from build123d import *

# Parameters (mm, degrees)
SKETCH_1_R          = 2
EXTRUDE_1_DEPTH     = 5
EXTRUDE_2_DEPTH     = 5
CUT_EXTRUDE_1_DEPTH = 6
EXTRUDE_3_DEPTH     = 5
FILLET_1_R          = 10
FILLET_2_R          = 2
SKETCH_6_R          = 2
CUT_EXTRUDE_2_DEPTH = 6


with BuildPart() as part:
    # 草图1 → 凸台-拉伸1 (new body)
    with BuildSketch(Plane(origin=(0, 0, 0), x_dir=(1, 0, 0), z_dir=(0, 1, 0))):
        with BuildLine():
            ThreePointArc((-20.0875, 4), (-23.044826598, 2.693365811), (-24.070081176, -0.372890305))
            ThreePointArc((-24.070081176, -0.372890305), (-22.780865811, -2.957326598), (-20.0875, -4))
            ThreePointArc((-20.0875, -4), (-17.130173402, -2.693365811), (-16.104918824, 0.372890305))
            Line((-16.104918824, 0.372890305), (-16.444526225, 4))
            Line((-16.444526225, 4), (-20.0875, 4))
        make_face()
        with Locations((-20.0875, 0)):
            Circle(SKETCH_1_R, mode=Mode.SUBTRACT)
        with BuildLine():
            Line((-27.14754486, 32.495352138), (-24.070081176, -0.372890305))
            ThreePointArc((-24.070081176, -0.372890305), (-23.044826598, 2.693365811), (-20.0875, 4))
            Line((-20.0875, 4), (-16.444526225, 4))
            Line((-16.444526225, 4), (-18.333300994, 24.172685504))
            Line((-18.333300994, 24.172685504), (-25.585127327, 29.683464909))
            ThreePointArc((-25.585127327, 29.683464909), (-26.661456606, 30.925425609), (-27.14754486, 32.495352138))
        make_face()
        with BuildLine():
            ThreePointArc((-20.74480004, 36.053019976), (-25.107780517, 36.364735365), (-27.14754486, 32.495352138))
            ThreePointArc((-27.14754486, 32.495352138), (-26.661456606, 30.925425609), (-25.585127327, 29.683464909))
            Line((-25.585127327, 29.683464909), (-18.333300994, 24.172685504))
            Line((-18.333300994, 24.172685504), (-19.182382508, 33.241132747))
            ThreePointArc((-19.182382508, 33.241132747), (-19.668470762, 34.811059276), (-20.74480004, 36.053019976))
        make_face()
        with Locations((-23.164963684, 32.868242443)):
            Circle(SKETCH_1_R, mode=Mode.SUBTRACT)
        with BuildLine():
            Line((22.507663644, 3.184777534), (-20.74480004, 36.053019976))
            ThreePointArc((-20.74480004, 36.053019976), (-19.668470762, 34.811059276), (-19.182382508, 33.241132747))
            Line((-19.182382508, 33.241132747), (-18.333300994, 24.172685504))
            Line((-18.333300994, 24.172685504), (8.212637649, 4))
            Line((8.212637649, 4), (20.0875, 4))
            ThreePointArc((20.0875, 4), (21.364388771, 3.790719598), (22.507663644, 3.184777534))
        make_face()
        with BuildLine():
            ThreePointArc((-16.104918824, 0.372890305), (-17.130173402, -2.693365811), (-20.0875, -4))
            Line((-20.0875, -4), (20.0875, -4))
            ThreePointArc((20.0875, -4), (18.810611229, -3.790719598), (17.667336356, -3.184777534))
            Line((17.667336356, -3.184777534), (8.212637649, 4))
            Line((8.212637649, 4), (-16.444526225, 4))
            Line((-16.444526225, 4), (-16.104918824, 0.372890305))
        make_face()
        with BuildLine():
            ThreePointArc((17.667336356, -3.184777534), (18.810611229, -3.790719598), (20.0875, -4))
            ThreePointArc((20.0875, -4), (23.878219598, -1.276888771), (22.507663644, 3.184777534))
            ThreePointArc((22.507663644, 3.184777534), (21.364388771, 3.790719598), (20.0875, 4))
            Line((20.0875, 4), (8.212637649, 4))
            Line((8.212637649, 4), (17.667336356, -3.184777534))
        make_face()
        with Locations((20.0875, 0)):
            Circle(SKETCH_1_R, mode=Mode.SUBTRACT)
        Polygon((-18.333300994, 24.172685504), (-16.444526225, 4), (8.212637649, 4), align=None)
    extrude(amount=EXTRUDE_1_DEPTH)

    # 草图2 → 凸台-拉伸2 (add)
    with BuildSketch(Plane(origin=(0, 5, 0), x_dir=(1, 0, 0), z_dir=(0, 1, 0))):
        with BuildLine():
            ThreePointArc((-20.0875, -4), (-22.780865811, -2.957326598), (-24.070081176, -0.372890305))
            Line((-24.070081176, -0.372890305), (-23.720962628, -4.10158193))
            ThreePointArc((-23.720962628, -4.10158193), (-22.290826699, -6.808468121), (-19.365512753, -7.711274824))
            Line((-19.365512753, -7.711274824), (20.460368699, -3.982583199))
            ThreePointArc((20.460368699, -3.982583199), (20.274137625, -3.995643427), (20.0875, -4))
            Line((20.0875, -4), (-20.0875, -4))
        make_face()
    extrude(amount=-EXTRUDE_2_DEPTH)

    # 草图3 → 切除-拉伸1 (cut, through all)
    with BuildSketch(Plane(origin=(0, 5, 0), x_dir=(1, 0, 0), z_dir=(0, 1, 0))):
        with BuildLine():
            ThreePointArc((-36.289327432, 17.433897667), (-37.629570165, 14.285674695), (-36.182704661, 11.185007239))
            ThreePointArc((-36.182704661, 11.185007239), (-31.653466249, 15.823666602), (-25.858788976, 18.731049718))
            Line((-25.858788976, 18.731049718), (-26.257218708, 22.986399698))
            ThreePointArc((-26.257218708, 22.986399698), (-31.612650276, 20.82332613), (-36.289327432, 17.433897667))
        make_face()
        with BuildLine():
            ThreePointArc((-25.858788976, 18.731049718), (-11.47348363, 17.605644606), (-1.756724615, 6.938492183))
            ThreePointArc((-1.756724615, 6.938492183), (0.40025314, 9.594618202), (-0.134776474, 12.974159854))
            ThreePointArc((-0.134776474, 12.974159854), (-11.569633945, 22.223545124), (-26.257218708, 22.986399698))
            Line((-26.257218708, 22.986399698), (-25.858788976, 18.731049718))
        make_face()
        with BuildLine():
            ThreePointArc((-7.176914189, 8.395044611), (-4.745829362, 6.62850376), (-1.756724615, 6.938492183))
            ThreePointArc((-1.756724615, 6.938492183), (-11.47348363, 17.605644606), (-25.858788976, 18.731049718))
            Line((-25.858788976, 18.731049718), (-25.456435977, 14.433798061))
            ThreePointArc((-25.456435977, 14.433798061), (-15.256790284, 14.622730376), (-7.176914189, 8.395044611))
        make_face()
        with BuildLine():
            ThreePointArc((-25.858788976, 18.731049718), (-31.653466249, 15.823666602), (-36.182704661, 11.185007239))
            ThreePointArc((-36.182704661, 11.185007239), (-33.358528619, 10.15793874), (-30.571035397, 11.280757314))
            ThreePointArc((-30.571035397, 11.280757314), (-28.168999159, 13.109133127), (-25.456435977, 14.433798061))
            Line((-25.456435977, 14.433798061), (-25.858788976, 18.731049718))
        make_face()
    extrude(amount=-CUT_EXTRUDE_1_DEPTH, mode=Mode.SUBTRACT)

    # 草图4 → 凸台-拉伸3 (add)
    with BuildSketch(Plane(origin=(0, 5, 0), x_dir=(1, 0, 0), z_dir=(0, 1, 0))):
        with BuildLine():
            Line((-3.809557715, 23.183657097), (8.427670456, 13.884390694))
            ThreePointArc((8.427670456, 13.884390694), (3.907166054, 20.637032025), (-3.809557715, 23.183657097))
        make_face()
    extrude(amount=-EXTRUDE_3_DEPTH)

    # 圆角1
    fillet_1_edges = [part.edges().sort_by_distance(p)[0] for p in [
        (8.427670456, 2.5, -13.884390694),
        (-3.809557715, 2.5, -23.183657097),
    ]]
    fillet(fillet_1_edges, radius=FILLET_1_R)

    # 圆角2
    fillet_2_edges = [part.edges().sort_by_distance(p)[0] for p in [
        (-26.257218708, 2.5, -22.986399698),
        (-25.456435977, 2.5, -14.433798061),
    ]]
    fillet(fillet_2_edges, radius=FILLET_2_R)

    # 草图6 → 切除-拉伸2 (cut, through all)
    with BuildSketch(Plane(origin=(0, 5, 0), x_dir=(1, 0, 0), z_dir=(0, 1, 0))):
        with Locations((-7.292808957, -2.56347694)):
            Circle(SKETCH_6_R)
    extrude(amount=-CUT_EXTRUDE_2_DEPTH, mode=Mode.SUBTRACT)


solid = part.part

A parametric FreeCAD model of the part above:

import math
import FreeCAD as App
import Part
import Sketcher
from FreeCAD import Vector
Q = App.Units.Quantity


def edges_at(feature, points):
    """Names of the edges that pass closest to the given points."""
    edges = feature.Shape.Edges
    near = lambda p: min(range(len(edges)), key=lambda i: edges[i].distToShape(Part.Vertex(*p))[0])
    return sorted({f"Edge{near(p) + 1}" for p in points})

doc = App.newDocument("Part")
body = doc.addObject("PartDesign::Body", "Body")

# Sketch on XZ plane
sketch1 = doc.addObject("Sketcher::SketchObject", "Sketch")
body.addObject(sketch1)
sketch1.AttachmentSupport = (doc.XZ_Plane, [""])
sketch1.MapMode = "FlatFace"
sketch1.addGeometry([
    Part.LineSegment(Vector(-20.1, 4, 0), Vector(20.1, 4, 0)),  # 0
    Part.ArcOfCircle(Part.Circle(Vector(20.1, 0, 0), Vector(0, 0, 1), 4), math.radians(-53), math.radians(90)),  # 1
    Part.LineSegment(Vector(22.5, -3.2, 0), Vector(-20.7, -36.1, 0)),  # 2
    Part.ArcOfCircle(Part.Circle(Vector(-23.2, -32.9, 0), Vector(0, 0, 1), 4), math.radians(175), math.radians(307)),  # 3
    Part.LineSegment(Vector(-27.1, -32.5, 0), Vector(-24.1, 0.4, 0)),  # 4
    Part.ArcOfCircle(Part.Circle(Vector(-20.1, 0, 0), Vector(0, 0, 1), 4), math.radians(90), math.radians(175)),  # 5
    Part.Circle(Vector(-20.1, 0, 0), Vector(0, 0, 1), 2),  # 6
    Part.Circle(Vector(20.1, 0, 0), Vector(0, 0, 1), 2),  # 7
    Part.Circle(Vector(-23.2, -32.9, 0), Vector(0, 0, 1), 2),  # 8
], False)
sketch1.addConstraint([
    Sketcher.Constraint("Tangent", 0, 2, 1, 2),
    Sketcher.Constraint("Tangent", 1, 1, 2, 1),
    Sketcher.Constraint("Tangent", 2, 2, 3, 2),
    Sketcher.Constraint("Tangent", 3, 1, 4, 1),
    Sketcher.Constraint("Tangent", 4, 2, 5, 2),
    Sketcher.Constraint("Tangent", 5, 1, 0, 1),
    Sketcher.Constraint("Horizontal", 0),
    Sketcher.Constraint("Coincident", 6, 3, 5, 3),
    Sketcher.Constraint("Coincident", 7, 3, 1, 3),
    Sketcher.Constraint("Coincident", 8, 3, 3, 3),
    Sketcher.Constraint("Equal", 1, 3),
    Sketcher.Constraint("Equal", 3, 5),
    Sketcher.Constraint("Equal", 6, 7),
    Sketcher.Constraint("Equal", 7, 8),
    Sketcher.Constraint("Symmetric", 1, 3, 5, 3, -1, 1),
    Sketcher.Constraint("Diameter", 6, Q("4 mm")),
    Sketcher.Constraint("Radius", 1, Q("4 mm")),
    Sketcher.Constraint("DistanceX", 0, 1, 0, 2, Q("40.175 mm")),
    Sketcher.Constraint("Distance", 2, Q("54.324 mm")),
    Sketcher.Constraint("Distance", 4, Q("33.012 mm")),
])
pad1 = doc.addObject("PartDesign::Pad", "Pad")
body.addObject(pad1)
pad1.Profile = sketch1
pad1.Length = 5
pad1.Reversed = True

# Sketch on XZ plane
sketch2 = doc.addObject("Sketcher::SketchObject", "Sketch001")
body.addObject(sketch2)
sketch2.AttachmentSupport = (doc.XZ_Plane, [""])
sketch2.MapMode = "FlatFace"
sketch2.AttachmentOffset = App.Placement(Vector(0, 0, -5), App.Rotation())
sketch2.addGeometry([
    Part.ArcOfCircle(Part.Circle(Vector(-20.09, 0, 0), Vector(0, 0, 1), 4), math.radians(90), math.radians(175)),  # 0
    Part.LineSegment(Vector(-24.07, 0.37, 0), Vector(-23.72, 4.1, 0)),  # 1
    Part.ArcOfCircle(Part.Circle(Vector(-19.74, 3.73, 0), Vector(0, 0, 1), 4), math.radians(85), math.radians(175)),  # 2
    Part.LineSegment(Vector(-19.37, 7.71, 0), Vector(20.46, 3.98, 0)),  # 3
    Part.ArcOfCircle(Part.Circle(Vector(20.09, 0, 0), Vector(0, 0, 1), 4), math.radians(84.65), math.radians(90)),  # 4
    Part.LineSegment(Vector(20.09, 4, 0), Vector(-20.09, 4, 0)),  # 5
], False)
sketch2.addConstraint([
    Sketcher.Constraint("Tangent", 0, 2, 1, 1),
    Sketcher.Constraint("Tangent", 1, 2, 2, 2),
    Sketcher.Constraint("Tangent", 2, 1, 3, 1),
    Sketcher.Constraint("Tangent", 3, 2, 4, 1),
    Sketcher.Constraint("Tangent", 4, 2, 5, 1),
    Sketcher.Constraint("Tangent", 5, 2, 0, 1),
    Sketcher.Constraint("Horizontal", 5),
    Sketcher.Constraint("Equal", 0, 2),
    Sketcher.Constraint("Equal", 2, 4),
    Sketcher.Constraint("Symmetric", 0, 3, 4, 3, -1, 1),
    Sketcher.Constraint("Radius", 0, Q("4 mm")),
    Sketcher.Constraint("DistanceX", 5, 2, 5, 1, Q("40.175 mm")),
    Sketcher.Constraint("Distance", 1, Q("3.745 mm")),
    Sketcher.Constraint("DistanceY", 3, 2, 1, 2, Q("0.118999 mm")),
])
pad2 = doc.addObject("PartDesign::Pad", "Pad001")
body.addObject(pad2)
pad2.Profile = sketch2
pad2.Length = 5

# Sketch on XZ plane
sketch3 = doc.addObject("Sketcher::SketchObject", "Sketch002")
body.addObject(sketch3)
sketch3.AttachmentSupport = (doc.XZ_Plane, [""])
sketch3.MapMode = "FlatFace"
sketch3.AttachmentOffset = App.Placement(Vector(0, 0, -5), App.Rotation())
sketch3.addGeometry([
    Part.ArcOfCircle(Part.Circle(Vector(-33.4, -14.4, 0), Vector(0, 0, 1), 4.2), math.radians(131), math.radians(227)),  # 0
    Part.ArcOfCircle(Part.Circle(Vector(-33.4, -14.4, 0), Vector(0, 0, 1), 4.2), math.radians(47), math.radians(131)),  # 1
    Part.ArcOfCircle(Part.Circle(Vector(-20.1, 0, 0), Vector(0, 0, 1), 15.4), math.radians(-133), math.radians(-110)),  # 2
    Part.ArcOfCircle(Part.Circle(Vector(-20.1, 0, 0), Vector(0, 0, 1), 15.4), math.radians(-110), math.radians(-33)),  # 3
    Part.ArcOfCircle(Part.Circle(Vector(-3.7, -10.7, 0), Vector(0, 0, 1), 4.2), math.radians(63), math.radians(147)),  # 4
    Part.ArcOfCircle(Part.Circle(Vector(-3.7, -10.7, 0), Vector(0, 0, 1), 4.2), math.radians(-33), math.radians(63)),  # 5
    Part.ArcOfCircle(Part.Circle(Vector(-20.1, 0, 0), Vector(0, 0, 1), 23.8), math.radians(-105), math.radians(-33)),  # 6
    Part.ArcOfCircle(Part.Circle(Vector(-20.1, 0, 0), Vector(0, 0, 1), 23.8), math.radians(-133), math.radians(-105)),  # 7
], False)
sketch3.addConstraint([
    Sketcher.Constraint("Tangent", 0, 1, 1, 2),
    Sketcher.Constraint("Tangent", 1, 1, 2, 1),
    Sketcher.Constraint("Tangent", 2, 2, 3, 1),
    Sketcher.Constraint("Tangent", 3, 2, 4, 2),
    Sketcher.Constraint("Tangent", 4, 1, 5, 2),
    Sketcher.Constraint("Tangent", 5, 1, 6, 2),
    Sketcher.Constraint("Tangent", 6, 1, 7, 2),
    Sketcher.Constraint("Tangent", 7, 1, 0, 2),
    Sketcher.Constraint("Coincident", 6, 3, 2, 3),
    Sketcher.Constraint("Equal", 0, 1),
    Sketcher.Constraint("Equal", 2, 3),
    Sketcher.Constraint("Equal", 1, 4),
    Sketcher.Constraint("Equal", 4, 5),
    Sketcher.Constraint("PointOnObject", 2, 3, -1),
    Sketcher.Constraint("Radius", 0, Q("4.2 mm")),
    Sketcher.Constraint("Radius", 2, Q("15.4 mm")),
    Sketcher.Constraint("DistanceX", 2, 3, -1, 1, Q("20.0875 mm")),
    Sketcher.Constraint("DistanceY", 2, 2, -1, 1, Q("14.433798 mm")),
    Sketcher.Constraint("DistanceY", 6, 1, -1, 1, Q("22.9864 mm")),
    Sketcher.Constraint("DistanceX", 1, 1, 2, 2, Q("5.114599 mm")),
    Sketcher.Constraint("DistanceY", 5, 1, -1, 1, Q("12.97416 mm")),
    Sketcher.Constraint("DistanceY", 0, 3, 0, 1, Q("3.17232 mm")),
    Sketcher.Constraint("DistanceX", 4, 3, 4, 1, Q("1.899121 mm")),
])
pocket1 = doc.addObject("PartDesign::Pocket", "Pocket")
body.addObject(pocket1)
pocket1.Profile = sketch3
pocket1.Type = "ThroughAll"
pocket1.Reversed = True

# Sketch on XZ plane
sketch4 = doc.addObject("Sketcher::SketchObject", "Sketch003")
body.addObject(sketch4)
sketch4.AttachmentSupport = (doc.XZ_Plane, [""])
sketch4.MapMode = "FlatFace"
sketch4.AttachmentOffset = App.Placement(Vector(0, 0, -5), App.Rotation())
sketch4.addGeometry([
    Part.LineSegment(Vector(-4, -23, 0), Vector(8, -14, 0)),
    Part.ArcOfCircle(Part.Circle(Vector(-4, -11, 0), Vector(0, 0, 1), 12), math.radians(-91), math.radians(-15)),
], False)
sketch4.addConstraint([
    Sketcher.Constraint("Coincident", 0, 1, 1, 1),
    Sketcher.Constraint("Coincident", 1, 2, 0, 2),
    Sketcher.Constraint("Radius", 1, Q("12.5 mm")),
    Sketcher.Constraint("Distance", 0, Q("15.369649 mm")),
    Sketcher.Constraint("DistanceX", -1, 1, 1, 2, Q("8.42767 mm")),
    Sketcher.Constraint("DistanceY", 1, 2, -1, 1, Q("13.884391 mm")),
    Sketcher.Constraint("DistanceY", 1, 2, 1, 3, Q("3.199788 mm")),
])
pad3 = doc.addObject("PartDesign::Pad", "Pad002")
body.addObject(pad3)
pad3.Profile = sketch4
pad3.Length = 5
doc.recompute()

fillet = doc.addObject("PartDesign::Fillet", "Fillet")
body.addObject(fillet)
fillet.Base = (pad3, edges_at(pad3, [(8.428, 2.5, -13.884), (-3.81, 2.5, -23.184)]))
fillet.Radius = 10
doc.recompute()

fillet2 = doc.addObject("PartDesign::Fillet", "Fillet001")
body.addObject(fillet2)
fillet2.Base = (fillet, edges_at(fillet, [(-26.257, 2.5, -22.986), (-25.456, 2.5, -14.434)]))
fillet2.Radius = 2

# Sketch on XZ plane
sketch5 = doc.addObject("Sketcher::SketchObject", "Sketch004")
body.addObject(sketch5)
sketch5.AttachmentSupport = (doc.XZ_Plane, [""])
sketch5.MapMode = "FlatFace"
sketch5.AttachmentOffset = App.Placement(Vector(0, 0, -5), App.Rotation())
sketch5.addGeometry(Part.Circle(Vector(-7.3, 2.6, 0), Vector(0, 0, 1), 2), False)
sketch5.addConstraint([
    Sketcher.Constraint("Diameter", 0, Q("4 mm")),
    Sketcher.Constraint("DistanceX", 0, 3, -1, 1, Q("7.292809 mm")),
    Sketcher.Constraint("DistanceY", -1, 1, 0, 3, Q("2.563477 mm")),
])
pocket2 = doc.addObject("PartDesign::Pocket", "Pocket001")
body.addObject(pocket2)
pocket2.Profile = sketch5
pocket2.Type = "ThroughAll"
pocket2.Reversed = True

doc.recompute()
